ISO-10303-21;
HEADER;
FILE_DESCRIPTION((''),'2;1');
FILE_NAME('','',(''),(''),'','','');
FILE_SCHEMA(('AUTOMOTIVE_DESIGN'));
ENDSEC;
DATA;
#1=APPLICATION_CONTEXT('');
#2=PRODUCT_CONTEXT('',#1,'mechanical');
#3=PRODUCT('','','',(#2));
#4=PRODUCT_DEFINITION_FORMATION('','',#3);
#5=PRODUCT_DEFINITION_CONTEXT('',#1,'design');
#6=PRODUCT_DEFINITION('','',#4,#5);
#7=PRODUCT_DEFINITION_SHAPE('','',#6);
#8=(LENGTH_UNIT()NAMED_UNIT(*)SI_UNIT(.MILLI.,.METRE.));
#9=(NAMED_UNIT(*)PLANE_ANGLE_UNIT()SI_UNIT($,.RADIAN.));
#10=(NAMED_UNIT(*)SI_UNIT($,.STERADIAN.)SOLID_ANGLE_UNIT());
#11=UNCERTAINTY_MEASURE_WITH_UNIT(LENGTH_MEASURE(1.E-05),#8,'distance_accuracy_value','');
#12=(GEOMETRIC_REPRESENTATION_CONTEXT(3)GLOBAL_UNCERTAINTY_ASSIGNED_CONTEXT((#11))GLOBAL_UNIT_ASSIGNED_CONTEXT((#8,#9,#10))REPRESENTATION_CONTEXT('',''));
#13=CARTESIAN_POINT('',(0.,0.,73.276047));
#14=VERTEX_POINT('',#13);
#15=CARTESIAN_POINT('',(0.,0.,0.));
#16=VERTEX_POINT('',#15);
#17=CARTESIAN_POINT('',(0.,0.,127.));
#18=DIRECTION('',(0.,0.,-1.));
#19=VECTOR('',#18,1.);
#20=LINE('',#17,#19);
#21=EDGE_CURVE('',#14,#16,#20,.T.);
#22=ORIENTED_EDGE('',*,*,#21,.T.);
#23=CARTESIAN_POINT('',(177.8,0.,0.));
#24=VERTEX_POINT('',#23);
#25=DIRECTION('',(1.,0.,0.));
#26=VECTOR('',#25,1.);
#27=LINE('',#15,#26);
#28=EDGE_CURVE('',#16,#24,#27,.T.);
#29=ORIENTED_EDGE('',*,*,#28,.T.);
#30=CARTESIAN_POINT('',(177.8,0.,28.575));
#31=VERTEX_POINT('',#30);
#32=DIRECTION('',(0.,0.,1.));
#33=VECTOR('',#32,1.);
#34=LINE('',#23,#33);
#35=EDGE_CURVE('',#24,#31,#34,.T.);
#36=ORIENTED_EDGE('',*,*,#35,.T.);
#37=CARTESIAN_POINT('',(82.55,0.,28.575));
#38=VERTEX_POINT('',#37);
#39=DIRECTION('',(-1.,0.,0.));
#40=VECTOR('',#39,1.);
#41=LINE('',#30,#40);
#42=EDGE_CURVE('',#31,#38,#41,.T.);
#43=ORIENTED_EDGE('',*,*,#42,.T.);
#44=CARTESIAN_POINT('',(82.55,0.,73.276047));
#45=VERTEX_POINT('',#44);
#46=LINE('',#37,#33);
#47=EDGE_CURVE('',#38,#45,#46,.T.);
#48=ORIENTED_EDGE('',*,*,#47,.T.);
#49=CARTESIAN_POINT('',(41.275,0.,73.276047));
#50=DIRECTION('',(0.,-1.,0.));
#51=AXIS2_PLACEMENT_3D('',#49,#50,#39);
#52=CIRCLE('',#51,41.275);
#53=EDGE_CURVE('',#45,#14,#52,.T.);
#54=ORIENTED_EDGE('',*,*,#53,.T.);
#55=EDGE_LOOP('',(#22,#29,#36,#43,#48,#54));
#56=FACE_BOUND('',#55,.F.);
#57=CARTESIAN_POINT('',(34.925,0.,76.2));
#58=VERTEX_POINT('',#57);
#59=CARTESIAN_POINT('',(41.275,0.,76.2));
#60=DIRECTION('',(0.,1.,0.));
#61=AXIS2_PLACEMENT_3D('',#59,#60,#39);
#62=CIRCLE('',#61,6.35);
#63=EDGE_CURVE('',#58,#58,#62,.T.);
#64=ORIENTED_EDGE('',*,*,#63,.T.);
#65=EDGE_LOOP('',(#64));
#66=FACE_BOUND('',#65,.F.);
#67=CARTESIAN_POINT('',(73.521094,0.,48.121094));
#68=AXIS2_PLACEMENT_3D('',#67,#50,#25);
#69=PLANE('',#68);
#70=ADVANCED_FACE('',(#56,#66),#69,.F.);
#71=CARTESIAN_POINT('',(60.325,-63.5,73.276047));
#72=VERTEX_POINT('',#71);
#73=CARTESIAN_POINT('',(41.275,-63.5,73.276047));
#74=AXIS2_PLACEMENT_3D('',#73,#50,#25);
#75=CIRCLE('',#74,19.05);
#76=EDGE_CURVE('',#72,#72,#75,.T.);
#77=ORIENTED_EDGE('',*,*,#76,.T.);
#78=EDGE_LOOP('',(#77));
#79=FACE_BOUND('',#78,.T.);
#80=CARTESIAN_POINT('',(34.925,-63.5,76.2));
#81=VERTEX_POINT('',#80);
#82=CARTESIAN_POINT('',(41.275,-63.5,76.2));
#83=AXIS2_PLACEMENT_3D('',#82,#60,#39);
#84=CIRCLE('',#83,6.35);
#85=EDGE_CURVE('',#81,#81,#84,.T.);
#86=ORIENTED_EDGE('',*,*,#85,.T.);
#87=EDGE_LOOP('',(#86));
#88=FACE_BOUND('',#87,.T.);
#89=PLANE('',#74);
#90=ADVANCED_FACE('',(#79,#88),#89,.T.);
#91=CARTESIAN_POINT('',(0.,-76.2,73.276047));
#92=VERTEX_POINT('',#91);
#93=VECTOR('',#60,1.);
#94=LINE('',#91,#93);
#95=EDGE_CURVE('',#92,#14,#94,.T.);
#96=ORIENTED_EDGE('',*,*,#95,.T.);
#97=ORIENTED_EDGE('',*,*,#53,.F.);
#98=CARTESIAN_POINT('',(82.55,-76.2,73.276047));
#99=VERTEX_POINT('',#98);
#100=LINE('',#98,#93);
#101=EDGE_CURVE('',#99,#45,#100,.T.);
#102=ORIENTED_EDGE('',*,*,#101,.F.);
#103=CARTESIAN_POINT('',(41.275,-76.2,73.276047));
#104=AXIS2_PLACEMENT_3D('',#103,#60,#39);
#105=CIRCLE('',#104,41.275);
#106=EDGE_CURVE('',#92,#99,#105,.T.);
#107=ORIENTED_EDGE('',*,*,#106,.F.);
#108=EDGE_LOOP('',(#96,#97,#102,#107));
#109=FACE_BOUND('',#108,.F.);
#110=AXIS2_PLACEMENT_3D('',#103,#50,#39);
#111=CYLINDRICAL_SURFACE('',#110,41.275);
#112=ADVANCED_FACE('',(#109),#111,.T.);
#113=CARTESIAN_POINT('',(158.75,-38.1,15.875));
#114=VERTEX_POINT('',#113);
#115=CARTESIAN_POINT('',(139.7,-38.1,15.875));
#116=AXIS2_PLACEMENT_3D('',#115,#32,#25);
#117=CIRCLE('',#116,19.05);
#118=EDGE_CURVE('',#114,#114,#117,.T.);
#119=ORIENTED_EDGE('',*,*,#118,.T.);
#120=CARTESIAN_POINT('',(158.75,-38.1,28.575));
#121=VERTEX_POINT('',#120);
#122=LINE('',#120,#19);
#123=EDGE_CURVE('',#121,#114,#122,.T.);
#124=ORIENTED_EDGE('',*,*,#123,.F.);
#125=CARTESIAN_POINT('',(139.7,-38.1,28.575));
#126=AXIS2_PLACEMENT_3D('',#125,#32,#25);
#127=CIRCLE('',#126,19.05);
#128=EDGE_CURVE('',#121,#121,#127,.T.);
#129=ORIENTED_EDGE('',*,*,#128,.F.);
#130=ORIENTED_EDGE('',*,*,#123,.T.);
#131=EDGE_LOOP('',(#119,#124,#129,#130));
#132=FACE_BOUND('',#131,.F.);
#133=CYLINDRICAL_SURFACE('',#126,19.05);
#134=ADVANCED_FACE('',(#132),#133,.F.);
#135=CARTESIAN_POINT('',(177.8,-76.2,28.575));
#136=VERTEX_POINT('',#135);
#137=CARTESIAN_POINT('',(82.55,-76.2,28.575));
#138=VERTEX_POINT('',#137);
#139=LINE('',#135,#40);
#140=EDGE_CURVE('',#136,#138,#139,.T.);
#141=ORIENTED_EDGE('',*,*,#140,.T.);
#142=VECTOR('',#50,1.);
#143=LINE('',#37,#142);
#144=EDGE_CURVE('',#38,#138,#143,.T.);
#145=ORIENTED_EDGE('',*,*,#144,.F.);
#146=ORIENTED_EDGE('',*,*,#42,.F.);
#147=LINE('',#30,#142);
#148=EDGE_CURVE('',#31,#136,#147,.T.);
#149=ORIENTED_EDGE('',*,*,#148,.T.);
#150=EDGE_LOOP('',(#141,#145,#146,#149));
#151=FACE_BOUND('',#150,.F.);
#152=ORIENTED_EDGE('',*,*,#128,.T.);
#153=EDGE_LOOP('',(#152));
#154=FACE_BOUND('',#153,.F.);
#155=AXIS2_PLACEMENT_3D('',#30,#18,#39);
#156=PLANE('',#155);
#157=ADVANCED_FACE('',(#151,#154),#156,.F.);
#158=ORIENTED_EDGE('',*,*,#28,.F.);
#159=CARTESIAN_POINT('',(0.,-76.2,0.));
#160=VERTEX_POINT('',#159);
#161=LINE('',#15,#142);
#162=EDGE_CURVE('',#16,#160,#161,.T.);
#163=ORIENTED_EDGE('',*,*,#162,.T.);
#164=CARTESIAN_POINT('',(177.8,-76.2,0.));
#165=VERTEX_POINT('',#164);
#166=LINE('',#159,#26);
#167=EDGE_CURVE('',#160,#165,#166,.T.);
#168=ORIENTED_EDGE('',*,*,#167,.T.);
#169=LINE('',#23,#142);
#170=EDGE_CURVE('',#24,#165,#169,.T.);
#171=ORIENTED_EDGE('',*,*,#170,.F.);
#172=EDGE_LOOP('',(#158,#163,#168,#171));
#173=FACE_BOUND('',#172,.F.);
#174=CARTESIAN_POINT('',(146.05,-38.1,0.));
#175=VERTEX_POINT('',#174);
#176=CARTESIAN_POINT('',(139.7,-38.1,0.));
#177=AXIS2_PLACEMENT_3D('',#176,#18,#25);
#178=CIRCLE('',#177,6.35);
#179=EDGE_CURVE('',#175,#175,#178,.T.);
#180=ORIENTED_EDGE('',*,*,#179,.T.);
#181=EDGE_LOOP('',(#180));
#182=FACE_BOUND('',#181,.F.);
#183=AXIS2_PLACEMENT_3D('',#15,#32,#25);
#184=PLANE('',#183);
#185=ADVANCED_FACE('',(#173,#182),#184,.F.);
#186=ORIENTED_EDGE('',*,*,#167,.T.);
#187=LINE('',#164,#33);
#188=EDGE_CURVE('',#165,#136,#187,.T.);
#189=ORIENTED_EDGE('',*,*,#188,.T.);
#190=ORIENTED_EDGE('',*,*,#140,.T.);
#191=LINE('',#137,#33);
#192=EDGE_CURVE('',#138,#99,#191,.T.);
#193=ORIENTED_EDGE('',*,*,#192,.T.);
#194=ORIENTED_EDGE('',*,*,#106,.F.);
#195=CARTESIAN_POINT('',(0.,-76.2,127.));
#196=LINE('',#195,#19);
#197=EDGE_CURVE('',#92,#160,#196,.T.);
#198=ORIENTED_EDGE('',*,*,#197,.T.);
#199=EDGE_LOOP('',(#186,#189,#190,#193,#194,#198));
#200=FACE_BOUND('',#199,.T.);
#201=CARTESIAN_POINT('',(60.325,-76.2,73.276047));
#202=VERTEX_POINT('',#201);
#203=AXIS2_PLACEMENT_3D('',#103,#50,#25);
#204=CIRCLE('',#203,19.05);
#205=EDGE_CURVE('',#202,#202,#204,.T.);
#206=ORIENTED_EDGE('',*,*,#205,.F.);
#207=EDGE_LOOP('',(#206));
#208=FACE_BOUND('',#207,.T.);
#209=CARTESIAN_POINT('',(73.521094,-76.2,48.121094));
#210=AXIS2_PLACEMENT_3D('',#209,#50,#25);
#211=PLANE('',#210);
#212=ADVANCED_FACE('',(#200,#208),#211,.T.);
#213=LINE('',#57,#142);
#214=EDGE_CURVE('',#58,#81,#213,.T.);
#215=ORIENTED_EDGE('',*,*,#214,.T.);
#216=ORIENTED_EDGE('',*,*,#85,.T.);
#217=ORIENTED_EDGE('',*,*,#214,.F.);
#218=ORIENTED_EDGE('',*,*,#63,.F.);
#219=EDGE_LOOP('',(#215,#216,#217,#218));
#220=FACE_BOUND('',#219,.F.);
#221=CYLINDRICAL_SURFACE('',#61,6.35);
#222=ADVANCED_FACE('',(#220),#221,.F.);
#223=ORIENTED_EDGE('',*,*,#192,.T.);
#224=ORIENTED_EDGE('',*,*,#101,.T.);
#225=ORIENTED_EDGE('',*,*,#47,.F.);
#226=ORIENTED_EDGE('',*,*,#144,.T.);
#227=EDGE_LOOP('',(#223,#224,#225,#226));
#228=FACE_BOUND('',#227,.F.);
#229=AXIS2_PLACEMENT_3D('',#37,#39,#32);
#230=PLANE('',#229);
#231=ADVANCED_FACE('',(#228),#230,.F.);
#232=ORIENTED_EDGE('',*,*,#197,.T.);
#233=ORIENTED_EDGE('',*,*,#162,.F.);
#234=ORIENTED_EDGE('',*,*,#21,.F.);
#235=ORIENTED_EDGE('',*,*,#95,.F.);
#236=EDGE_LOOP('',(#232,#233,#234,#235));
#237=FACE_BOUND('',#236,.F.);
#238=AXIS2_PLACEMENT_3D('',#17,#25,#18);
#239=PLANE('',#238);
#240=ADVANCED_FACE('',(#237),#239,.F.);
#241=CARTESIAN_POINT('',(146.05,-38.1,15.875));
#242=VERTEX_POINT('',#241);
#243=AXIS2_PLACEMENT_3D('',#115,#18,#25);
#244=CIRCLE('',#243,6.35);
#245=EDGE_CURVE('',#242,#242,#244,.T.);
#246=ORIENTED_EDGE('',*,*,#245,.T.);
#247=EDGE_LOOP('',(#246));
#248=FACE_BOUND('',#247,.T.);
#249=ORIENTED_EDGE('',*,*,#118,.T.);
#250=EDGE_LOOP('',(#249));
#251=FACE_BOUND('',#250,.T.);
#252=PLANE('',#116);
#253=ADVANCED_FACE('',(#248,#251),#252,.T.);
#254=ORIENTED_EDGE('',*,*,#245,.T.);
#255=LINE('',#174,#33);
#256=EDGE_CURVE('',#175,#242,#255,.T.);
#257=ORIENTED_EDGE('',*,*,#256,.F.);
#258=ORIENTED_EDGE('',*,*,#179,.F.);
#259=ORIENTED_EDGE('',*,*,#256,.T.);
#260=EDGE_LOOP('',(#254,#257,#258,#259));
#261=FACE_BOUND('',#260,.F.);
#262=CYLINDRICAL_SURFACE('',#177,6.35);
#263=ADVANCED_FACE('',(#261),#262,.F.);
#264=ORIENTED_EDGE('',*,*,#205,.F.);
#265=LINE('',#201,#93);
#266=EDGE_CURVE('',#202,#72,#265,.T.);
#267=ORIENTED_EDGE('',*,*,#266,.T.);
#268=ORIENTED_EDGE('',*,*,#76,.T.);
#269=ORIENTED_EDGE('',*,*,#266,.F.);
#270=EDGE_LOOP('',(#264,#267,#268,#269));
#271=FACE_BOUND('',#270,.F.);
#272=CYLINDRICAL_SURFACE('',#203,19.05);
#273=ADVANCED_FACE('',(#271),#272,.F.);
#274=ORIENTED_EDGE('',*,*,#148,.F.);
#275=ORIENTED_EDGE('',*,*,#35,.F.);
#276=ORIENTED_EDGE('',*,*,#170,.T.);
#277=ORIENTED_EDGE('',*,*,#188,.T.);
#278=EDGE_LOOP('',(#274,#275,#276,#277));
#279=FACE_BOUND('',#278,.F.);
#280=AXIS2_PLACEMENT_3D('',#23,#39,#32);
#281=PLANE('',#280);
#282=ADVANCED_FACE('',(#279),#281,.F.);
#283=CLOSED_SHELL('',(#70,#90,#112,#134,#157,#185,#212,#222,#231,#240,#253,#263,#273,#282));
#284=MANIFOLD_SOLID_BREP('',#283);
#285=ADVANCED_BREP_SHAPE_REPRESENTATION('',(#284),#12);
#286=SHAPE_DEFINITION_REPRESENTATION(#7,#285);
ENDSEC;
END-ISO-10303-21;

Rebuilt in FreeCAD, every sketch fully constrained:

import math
import FreeCAD as App
import Part
import Sketcher
Q = App.Units.Quantity


def add_polygon(sketch, points):
    """Adds a closed chain of lines whose ends are joined by coincident constraints."""
    first, n = sketch.GeometryCount, len(points)
    for a, b in zip(points, points[1:] + points[:1]):
        sketch.addGeometry(Part.LineSegment(App.Vector(*a, 0), App.Vector(*b, 0)), False)
    for i in range(n):
        sketch.addConstraint(Sketcher.Constraint("Coincident", first + i, 2, first + (i + 1) % n, 1))

doc = App.newDocument("Part")
body = doc.addObject("PartDesign::Body", "Body")

# Sketch on XZ plane
sketch1 = doc.addObject("Sketcher::SketchObject", "Sketch")
body.addObject(sketch1)
sketch1.AttachmentSupport = (doc.XZ_Plane, [""])
sketch1.MapMode = "FlatFace"
add_polygon(sketch1, [(0, 127), (0, 0), (178, 0), (178, 29), (83, 29), (83, 127)])  # lines 0-5
sketch1.addConstraint([
    Sketcher.Constraint("Vertical", 0),
    Sketcher.Constraint("Horizontal", 1),
    Sketcher.Constraint("Vertical", 2),
    Sketcher.Constraint("Horizontal", 3),
    Sketcher.Constraint("Vertical", 4),
    Sketcher.Constraint("Horizontal", 5),
    Sketcher.Constraint("Coincident", 0, 2, -1, 1),
    Sketcher.Constraint("DistanceX", 1, 1, 1, 2, Q("7 in")),
    Sketcher.Constraint("DistanceY", 0, 2, 0, 1, Q("5 in")),
    Sketcher.Constraint("DistanceX", 3, 2, 3, 1, Q("3.75 in")),
    Sketcher.Constraint("DistanceY", 2, 1, 2, 2, Q("1.125 in")),
])
pad1 = doc.addObject("PartDesign::Pad", "Pad")
body.addObject(pad1)
pad1.Profile = sketch1
pad1.Length = Q("3 in")

# Sketch on XZ plane
sketch2 = doc.addObject("Sketcher::SketchObject", "Sketch001")
body.addObject(sketch2)
sketch2.AttachmentSupport = (doc.XZ_Plane, [""])
sketch2.MapMode = "FlatFace"
sketch2.AttachmentOffset = App.Placement(App.Vector(0, 0, 3 * 25.4), App.Rotation())
sketch2.addGeometry([
    Part.ArcOfCircle(Part.Circle(App.Vector(41, 73, 0), App.Vector(0, 0, 1), 41), math.radians(0), math.radians(180)),
    Part.LineSegment(App.Vector(83, 73, 0), App.Vector(83, 127, 0)),
    Part.LineSegment(App.Vector(83, 127, 0), App.Vector(0, 127, 0)),
    Part.LineSegment(App.Vector(0, 127, 0), App.Vector(0, 73, 0)),
], False)
sketch2.addConstraint([
    Sketcher.Constraint("Tangent", 0, 1, 1, 1),
    Sketcher.Constraint("Coincident", 1, 2, 2, 1),
    Sketcher.Constraint("Coincident", 2, 2, 3, 1),
    Sketcher.Constraint("Tangent", 3, 2, 0, 2),
    Sketcher.Constraint("Vertical", 1),
    Sketcher.Constraint("Horizontal", 2),
    Sketcher.Constraint("Vertical", 3),
    Sketcher.Constraint("PointOnObject", 2, 2, -2),
    Sketcher.Constraint("DistanceY", -1, 1, 1, 2, Q("5 in")),
    Sketcher.Constraint("Radius", 0, Q("1.625 in")),
    Sketcher.Constraint("DistanceY", 1, 1, 1, 2, Q("53.723953 mm")),
])
pocket1 = doc.addObject("PartDesign::Pocket", "Pocket")
body.addObject(pocket1)
pocket1.Profile = sketch2
pocket1.Type = "ThroughAll"

# Sketch on XZ plane
sketch3 = doc.addObject("Sketcher::SketchObject", "Sketch002")
body.addObject(sketch3)
sketch3.AttachmentSupport = (doc.XZ_Plane, [""])
sketch3.MapMode = "FlatFace"
sketch3.AttachmentOffset = App.Placement(App.Vector(0, 0, 3 * 25.4), App.Rotation())
sketch3.addGeometry(Part.Circle(App.Vector(41, 73, 0), App.Vector(0, 0, 1), 19), False)
sketch3.addConstraint([
    Sketcher.Constraint("Diameter", 0, Q("1.5 in")),
    Sketcher.Constraint("DistanceX", -1, 1, 0, 3, Q("1.625 in")),
    Sketcher.Constraint("DistanceY", -1, 1, 0, 3, Q("73.276047 mm")),
])
pocket2 = doc.addObject("PartDesign::Pocket", "Pocket001")
body.addObject(pocket2)
pocket2.Profile = sketch3
pocket2.Length = Q("0.5 in")

# Sketch on XZ plane
sketch4 = doc.addObject("Sketcher::SketchObject", "Sketch003")
body.addObject(sketch4)
sketch4.AttachmentSupport = (doc.XZ_Plane, [""])
sketch4.MapMode = "FlatFace"
sketch4.addGeometry(Part.Circle(App.Vector(41, 76, 0), App.Vector(0, 0, 1), 6), False)
sketch4.addConstraint([
    Sketcher.Constraint("Diameter", 0, Q("0.5 in")),
    Sketcher.Constraint("DistanceY", -1, 1, 0, 3, Q("3 in")),
    Sketcher.Constraint("DistanceX", -1, 1, 0, 3, Q("1.625 in")),
])
pocket3 = doc.addObject("PartDesign::Pocket", "Pocket002")
body.addObject(pocket3)
pocket3.Profile = sketch4
pocket3.Type = "ThroughAll"
pocket3.Reversed = True

# Sketch on XY plane
sketch5 = doc.addObject("Sketcher::SketchObject", "Sketch004")
body.addObject(sketch5)
sketch5.AttachmentSupport = (doc.XY_Plane, [""])
sketch5.MapMode = "FlatFace"
sketch5.AttachmentOffset = App.Placement(App.Vector(0, 0, 1.125 * 25.4), App.Rotation())
sketch5.addGeometry(Part.Circle(App.Vector(140, -38, 0), App.Vector(0, 0, 1), 19), False)
sketch5.addConstraint([
    Sketcher.Constraint("Diameter", 0, Q("1.5 in")),
    Sketcher.Constraint("DistanceX", -1, 1, 0, 3, Q("5.5 in")),
    Sketcher.Constraint("DistanceY", 0, 3, -1, 1, Q("1.5 in")),
])
pocket4 = doc.addObject("PartDesign::Pocket", "Pocket003")
body.addObject(pocket4)
pocket4.Profile = sketch5
pocket4.Length = Q("0.5 in")

# Sketch on XY plane
sketch6 = doc.addObject("Sketcher::SketchObject", "Sketch005")
body.addObject(sketch6)
sketch6.AttachmentSupport = (doc.XY_Plane, [""])
sketch6.MapMode = "FlatFace"
sketch6.addGeometry(Part.Circle(App.Vector(140, -38, 0), App.Vector(0, 0, 1), 6), False)
sketch6.addConstraint([
    Sketcher.Constraint("Diameter", 0, Q("0.5 in")),
    Sketcher.Constraint("DistanceX", -1, 1, 0, 3, Q("5.5 in")),
    Sketcher.Constraint("DistanceY", 0, 3, -1, 1, Q("1.5 in")),
])
pocket5 = doc.addObject("PartDesign::Pocket", "Pocket004")
body.addObject(pocket5)
pocket5.Profile = sketch6
pocket5.Type = "ThroughAll"
pocket5.Reversed = True

doc.recompute()
